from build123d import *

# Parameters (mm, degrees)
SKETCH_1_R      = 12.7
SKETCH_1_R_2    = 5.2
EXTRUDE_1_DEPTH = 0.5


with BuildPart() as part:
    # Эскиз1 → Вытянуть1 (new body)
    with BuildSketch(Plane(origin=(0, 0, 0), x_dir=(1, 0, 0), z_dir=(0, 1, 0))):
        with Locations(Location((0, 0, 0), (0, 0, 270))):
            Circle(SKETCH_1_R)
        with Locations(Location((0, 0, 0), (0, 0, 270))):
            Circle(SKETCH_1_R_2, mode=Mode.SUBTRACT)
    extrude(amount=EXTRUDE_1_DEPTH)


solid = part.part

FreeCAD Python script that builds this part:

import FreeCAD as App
import Part
import Sketcher

V = App.Vector

doc = App.newDocument("Part")
body = doc.addObject("PartDesign::Body", "Body")

# Sketch on XZ plane
sketch1 = doc.addObject("Sketcher::SketchObject", "Sketch")
body.addObject(sketch1)
sketch1.AttachmentSupport = (doc.XZ_Plane, [""])
sketch1.MapMode = "FlatFace"
sketch1.addGeometry(Part.Circle(V(0, 0, 0), V(0, 0, 1), 13), False)
sketch1.addGeometry(Part.Circle(V(0, 0, 0), V(0, 0, 1), 5), False)
sketch1.addConstraint(Sketcher.Constraint("Coincident", 0, 3, -1, 1))
sketch1.addConstraint(Sketcher.Constraint("Coincident", 1, 3, -1, 1))
sketch1.addConstraint(Sketcher.Constraint("Diameter", 0, 25.4))
sketch1.addConstraint(Sketcher.Constraint("Diameter", 1, 10.4))
pad1 = doc.addObject("PartDesign::Pad", "Pad")
body.addObject(pad1)
pad1.Profile = sketch1
pad1.Length = 0.5
pad1.Reversed = True

doc.recompute()
